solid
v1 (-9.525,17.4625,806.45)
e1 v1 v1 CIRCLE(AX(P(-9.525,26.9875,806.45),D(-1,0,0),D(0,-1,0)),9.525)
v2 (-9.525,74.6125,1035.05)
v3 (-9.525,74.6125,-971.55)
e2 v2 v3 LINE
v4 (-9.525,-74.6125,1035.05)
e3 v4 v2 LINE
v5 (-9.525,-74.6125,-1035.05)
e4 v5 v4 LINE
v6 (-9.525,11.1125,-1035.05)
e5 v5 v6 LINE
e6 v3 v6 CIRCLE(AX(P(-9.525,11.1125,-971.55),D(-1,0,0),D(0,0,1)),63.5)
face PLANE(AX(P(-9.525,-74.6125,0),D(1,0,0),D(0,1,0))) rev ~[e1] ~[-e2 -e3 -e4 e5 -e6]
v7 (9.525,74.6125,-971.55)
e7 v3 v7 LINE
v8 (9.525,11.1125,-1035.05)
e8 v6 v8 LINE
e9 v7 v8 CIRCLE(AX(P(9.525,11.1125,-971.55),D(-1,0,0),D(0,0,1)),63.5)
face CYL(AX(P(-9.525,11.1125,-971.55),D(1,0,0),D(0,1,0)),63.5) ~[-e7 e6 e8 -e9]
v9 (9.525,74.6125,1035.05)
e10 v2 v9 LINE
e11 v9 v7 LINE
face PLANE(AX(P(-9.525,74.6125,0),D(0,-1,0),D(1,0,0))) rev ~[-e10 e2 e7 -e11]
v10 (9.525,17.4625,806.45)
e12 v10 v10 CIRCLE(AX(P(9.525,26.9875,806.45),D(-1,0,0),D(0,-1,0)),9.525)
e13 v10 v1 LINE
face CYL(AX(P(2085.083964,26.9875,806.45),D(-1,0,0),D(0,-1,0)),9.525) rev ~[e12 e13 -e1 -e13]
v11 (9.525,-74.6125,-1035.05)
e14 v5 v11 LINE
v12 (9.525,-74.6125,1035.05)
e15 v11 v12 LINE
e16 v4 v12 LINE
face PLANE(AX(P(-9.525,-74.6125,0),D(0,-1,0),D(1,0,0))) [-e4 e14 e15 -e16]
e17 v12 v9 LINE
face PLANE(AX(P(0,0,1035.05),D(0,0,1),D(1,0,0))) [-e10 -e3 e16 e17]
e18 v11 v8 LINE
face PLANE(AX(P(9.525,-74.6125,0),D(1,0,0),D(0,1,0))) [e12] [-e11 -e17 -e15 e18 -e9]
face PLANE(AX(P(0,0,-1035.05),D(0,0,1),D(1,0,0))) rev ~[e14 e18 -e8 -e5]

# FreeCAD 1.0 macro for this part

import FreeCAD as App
import Part
import Sketcher
from FreeCAD import Vector
Q = App.Units.Quantity


def edges_at(feature, points):
    """Names of the edges that pass closest to the given points."""
    edges = feature.Shape.Edges
    near = lambda p: min(range(len(edges)), key=lambda i: edges[i].distToShape(Part.Vertex(*p))[0])
    return sorted({f"Edge{near(p) + 1}" for p in points})

doc = App.newDocument("Part")
body = doc.addObject("PartDesign::Body", "Body")

# Sketch on XY plane
sketch1 = doc.addObject("Sketcher::SketchObject", "Sketch")
body.addObject(sketch1)
sketch1.AttachmentSupport = (doc.XY_Plane, [""])
sketch1.MapMode = "FlatFace"
sketch1.addGeometry([
    Part.LineSegment(Vector(-10, 75, 0), Vector(-10, -75, 0)),
    Part.LineSegment(Vector(-10, -75, 0), Vector(10, -75, 0)),
    Part.LineSegment(Vector(10, -75, 0), Vector(10, 75, 0)),
    Part.LineSegment(Vector(10, 75, 0), Vector(-10, 75, 0)),
], False)
sketch1.addConstraint([
    Sketcher.Constraint("Coincident", 0, 2, 1, 1),
    Sketcher.Constraint("Coincident", 1, 2, 2, 1),
    Sketcher.Constraint("Coincident", 2, 2, 3, 1),
    Sketcher.Constraint("Coincident", 3, 2, 0, 1),
    Sketcher.Constraint("Vertical", 0),
    Sketcher.Constraint("Horizontal", 1),
    Sketcher.Constraint("Vertical", 2),
    Sketcher.Constraint("Horizontal", 3),
    Sketcher.Constraint("Symmetric", 0, 2, 2, 2, -1, 1),
    Sketcher.Constraint("DistanceX", 1, 1, 1, 2, Q("0.75 in")),
    Sketcher.Constraint("DistanceY", 0, 2, 0, 1, Q("5.875 in")),
])
pad1 = doc.addObject("PartDesign::Pad", "Pad")
body.addObject(pad1)
pad1.Profile = sketch1
pad1.Length = Q("81.5 in")
pad1.Midplane = True
doc.recompute()

fillet = doc.addObject("PartDesign::Fillet", "Fillet")
body.addObject(fillet)
fillet.Base = (pad1, edges_at(pad1, [(0, 74.612, -1035.05)]))
fillet.Radius = Q("2.5 in")

# Sketch on YZ plane
sketch2 = doc.addObject("Sketcher::SketchObject", "Sketch001")
body.addObject(sketch2)
sketch2.AttachmentSupport = (doc.YZ_Plane, [""])
sketch2.MapMode = "FlatFace"
sketch2.AttachmentOffset = App.Placement(Vector(0, 0, 0.375 * 25.4), App.Rotation())
sketch2.addGeometry(Part.Circle(Vector(27, 806, 0), Vector(0, 0, 1), 10), False)
sketch2.addConstraint([
    Sketcher.Constraint("Diameter", 0, Q("0.75 in")),
    Sketcher.Constraint("DistanceY", -1, 1, 0, 3, Q("31.75 in")),
    Sketcher.Constraint("DistanceX", -1, 1, 0, 3, Q("1.0625 in")),
])
doc.recompute()
hole = doc.addObject("PartDesign::Hole", "Hole")
body.addObject(hole)
hole.Profile = sketch2
hole.ThreadType = "None"
hole.Diameter = Q("0.75 in")
hole.DepthType = "ThroughAll"

doc.recompute()
